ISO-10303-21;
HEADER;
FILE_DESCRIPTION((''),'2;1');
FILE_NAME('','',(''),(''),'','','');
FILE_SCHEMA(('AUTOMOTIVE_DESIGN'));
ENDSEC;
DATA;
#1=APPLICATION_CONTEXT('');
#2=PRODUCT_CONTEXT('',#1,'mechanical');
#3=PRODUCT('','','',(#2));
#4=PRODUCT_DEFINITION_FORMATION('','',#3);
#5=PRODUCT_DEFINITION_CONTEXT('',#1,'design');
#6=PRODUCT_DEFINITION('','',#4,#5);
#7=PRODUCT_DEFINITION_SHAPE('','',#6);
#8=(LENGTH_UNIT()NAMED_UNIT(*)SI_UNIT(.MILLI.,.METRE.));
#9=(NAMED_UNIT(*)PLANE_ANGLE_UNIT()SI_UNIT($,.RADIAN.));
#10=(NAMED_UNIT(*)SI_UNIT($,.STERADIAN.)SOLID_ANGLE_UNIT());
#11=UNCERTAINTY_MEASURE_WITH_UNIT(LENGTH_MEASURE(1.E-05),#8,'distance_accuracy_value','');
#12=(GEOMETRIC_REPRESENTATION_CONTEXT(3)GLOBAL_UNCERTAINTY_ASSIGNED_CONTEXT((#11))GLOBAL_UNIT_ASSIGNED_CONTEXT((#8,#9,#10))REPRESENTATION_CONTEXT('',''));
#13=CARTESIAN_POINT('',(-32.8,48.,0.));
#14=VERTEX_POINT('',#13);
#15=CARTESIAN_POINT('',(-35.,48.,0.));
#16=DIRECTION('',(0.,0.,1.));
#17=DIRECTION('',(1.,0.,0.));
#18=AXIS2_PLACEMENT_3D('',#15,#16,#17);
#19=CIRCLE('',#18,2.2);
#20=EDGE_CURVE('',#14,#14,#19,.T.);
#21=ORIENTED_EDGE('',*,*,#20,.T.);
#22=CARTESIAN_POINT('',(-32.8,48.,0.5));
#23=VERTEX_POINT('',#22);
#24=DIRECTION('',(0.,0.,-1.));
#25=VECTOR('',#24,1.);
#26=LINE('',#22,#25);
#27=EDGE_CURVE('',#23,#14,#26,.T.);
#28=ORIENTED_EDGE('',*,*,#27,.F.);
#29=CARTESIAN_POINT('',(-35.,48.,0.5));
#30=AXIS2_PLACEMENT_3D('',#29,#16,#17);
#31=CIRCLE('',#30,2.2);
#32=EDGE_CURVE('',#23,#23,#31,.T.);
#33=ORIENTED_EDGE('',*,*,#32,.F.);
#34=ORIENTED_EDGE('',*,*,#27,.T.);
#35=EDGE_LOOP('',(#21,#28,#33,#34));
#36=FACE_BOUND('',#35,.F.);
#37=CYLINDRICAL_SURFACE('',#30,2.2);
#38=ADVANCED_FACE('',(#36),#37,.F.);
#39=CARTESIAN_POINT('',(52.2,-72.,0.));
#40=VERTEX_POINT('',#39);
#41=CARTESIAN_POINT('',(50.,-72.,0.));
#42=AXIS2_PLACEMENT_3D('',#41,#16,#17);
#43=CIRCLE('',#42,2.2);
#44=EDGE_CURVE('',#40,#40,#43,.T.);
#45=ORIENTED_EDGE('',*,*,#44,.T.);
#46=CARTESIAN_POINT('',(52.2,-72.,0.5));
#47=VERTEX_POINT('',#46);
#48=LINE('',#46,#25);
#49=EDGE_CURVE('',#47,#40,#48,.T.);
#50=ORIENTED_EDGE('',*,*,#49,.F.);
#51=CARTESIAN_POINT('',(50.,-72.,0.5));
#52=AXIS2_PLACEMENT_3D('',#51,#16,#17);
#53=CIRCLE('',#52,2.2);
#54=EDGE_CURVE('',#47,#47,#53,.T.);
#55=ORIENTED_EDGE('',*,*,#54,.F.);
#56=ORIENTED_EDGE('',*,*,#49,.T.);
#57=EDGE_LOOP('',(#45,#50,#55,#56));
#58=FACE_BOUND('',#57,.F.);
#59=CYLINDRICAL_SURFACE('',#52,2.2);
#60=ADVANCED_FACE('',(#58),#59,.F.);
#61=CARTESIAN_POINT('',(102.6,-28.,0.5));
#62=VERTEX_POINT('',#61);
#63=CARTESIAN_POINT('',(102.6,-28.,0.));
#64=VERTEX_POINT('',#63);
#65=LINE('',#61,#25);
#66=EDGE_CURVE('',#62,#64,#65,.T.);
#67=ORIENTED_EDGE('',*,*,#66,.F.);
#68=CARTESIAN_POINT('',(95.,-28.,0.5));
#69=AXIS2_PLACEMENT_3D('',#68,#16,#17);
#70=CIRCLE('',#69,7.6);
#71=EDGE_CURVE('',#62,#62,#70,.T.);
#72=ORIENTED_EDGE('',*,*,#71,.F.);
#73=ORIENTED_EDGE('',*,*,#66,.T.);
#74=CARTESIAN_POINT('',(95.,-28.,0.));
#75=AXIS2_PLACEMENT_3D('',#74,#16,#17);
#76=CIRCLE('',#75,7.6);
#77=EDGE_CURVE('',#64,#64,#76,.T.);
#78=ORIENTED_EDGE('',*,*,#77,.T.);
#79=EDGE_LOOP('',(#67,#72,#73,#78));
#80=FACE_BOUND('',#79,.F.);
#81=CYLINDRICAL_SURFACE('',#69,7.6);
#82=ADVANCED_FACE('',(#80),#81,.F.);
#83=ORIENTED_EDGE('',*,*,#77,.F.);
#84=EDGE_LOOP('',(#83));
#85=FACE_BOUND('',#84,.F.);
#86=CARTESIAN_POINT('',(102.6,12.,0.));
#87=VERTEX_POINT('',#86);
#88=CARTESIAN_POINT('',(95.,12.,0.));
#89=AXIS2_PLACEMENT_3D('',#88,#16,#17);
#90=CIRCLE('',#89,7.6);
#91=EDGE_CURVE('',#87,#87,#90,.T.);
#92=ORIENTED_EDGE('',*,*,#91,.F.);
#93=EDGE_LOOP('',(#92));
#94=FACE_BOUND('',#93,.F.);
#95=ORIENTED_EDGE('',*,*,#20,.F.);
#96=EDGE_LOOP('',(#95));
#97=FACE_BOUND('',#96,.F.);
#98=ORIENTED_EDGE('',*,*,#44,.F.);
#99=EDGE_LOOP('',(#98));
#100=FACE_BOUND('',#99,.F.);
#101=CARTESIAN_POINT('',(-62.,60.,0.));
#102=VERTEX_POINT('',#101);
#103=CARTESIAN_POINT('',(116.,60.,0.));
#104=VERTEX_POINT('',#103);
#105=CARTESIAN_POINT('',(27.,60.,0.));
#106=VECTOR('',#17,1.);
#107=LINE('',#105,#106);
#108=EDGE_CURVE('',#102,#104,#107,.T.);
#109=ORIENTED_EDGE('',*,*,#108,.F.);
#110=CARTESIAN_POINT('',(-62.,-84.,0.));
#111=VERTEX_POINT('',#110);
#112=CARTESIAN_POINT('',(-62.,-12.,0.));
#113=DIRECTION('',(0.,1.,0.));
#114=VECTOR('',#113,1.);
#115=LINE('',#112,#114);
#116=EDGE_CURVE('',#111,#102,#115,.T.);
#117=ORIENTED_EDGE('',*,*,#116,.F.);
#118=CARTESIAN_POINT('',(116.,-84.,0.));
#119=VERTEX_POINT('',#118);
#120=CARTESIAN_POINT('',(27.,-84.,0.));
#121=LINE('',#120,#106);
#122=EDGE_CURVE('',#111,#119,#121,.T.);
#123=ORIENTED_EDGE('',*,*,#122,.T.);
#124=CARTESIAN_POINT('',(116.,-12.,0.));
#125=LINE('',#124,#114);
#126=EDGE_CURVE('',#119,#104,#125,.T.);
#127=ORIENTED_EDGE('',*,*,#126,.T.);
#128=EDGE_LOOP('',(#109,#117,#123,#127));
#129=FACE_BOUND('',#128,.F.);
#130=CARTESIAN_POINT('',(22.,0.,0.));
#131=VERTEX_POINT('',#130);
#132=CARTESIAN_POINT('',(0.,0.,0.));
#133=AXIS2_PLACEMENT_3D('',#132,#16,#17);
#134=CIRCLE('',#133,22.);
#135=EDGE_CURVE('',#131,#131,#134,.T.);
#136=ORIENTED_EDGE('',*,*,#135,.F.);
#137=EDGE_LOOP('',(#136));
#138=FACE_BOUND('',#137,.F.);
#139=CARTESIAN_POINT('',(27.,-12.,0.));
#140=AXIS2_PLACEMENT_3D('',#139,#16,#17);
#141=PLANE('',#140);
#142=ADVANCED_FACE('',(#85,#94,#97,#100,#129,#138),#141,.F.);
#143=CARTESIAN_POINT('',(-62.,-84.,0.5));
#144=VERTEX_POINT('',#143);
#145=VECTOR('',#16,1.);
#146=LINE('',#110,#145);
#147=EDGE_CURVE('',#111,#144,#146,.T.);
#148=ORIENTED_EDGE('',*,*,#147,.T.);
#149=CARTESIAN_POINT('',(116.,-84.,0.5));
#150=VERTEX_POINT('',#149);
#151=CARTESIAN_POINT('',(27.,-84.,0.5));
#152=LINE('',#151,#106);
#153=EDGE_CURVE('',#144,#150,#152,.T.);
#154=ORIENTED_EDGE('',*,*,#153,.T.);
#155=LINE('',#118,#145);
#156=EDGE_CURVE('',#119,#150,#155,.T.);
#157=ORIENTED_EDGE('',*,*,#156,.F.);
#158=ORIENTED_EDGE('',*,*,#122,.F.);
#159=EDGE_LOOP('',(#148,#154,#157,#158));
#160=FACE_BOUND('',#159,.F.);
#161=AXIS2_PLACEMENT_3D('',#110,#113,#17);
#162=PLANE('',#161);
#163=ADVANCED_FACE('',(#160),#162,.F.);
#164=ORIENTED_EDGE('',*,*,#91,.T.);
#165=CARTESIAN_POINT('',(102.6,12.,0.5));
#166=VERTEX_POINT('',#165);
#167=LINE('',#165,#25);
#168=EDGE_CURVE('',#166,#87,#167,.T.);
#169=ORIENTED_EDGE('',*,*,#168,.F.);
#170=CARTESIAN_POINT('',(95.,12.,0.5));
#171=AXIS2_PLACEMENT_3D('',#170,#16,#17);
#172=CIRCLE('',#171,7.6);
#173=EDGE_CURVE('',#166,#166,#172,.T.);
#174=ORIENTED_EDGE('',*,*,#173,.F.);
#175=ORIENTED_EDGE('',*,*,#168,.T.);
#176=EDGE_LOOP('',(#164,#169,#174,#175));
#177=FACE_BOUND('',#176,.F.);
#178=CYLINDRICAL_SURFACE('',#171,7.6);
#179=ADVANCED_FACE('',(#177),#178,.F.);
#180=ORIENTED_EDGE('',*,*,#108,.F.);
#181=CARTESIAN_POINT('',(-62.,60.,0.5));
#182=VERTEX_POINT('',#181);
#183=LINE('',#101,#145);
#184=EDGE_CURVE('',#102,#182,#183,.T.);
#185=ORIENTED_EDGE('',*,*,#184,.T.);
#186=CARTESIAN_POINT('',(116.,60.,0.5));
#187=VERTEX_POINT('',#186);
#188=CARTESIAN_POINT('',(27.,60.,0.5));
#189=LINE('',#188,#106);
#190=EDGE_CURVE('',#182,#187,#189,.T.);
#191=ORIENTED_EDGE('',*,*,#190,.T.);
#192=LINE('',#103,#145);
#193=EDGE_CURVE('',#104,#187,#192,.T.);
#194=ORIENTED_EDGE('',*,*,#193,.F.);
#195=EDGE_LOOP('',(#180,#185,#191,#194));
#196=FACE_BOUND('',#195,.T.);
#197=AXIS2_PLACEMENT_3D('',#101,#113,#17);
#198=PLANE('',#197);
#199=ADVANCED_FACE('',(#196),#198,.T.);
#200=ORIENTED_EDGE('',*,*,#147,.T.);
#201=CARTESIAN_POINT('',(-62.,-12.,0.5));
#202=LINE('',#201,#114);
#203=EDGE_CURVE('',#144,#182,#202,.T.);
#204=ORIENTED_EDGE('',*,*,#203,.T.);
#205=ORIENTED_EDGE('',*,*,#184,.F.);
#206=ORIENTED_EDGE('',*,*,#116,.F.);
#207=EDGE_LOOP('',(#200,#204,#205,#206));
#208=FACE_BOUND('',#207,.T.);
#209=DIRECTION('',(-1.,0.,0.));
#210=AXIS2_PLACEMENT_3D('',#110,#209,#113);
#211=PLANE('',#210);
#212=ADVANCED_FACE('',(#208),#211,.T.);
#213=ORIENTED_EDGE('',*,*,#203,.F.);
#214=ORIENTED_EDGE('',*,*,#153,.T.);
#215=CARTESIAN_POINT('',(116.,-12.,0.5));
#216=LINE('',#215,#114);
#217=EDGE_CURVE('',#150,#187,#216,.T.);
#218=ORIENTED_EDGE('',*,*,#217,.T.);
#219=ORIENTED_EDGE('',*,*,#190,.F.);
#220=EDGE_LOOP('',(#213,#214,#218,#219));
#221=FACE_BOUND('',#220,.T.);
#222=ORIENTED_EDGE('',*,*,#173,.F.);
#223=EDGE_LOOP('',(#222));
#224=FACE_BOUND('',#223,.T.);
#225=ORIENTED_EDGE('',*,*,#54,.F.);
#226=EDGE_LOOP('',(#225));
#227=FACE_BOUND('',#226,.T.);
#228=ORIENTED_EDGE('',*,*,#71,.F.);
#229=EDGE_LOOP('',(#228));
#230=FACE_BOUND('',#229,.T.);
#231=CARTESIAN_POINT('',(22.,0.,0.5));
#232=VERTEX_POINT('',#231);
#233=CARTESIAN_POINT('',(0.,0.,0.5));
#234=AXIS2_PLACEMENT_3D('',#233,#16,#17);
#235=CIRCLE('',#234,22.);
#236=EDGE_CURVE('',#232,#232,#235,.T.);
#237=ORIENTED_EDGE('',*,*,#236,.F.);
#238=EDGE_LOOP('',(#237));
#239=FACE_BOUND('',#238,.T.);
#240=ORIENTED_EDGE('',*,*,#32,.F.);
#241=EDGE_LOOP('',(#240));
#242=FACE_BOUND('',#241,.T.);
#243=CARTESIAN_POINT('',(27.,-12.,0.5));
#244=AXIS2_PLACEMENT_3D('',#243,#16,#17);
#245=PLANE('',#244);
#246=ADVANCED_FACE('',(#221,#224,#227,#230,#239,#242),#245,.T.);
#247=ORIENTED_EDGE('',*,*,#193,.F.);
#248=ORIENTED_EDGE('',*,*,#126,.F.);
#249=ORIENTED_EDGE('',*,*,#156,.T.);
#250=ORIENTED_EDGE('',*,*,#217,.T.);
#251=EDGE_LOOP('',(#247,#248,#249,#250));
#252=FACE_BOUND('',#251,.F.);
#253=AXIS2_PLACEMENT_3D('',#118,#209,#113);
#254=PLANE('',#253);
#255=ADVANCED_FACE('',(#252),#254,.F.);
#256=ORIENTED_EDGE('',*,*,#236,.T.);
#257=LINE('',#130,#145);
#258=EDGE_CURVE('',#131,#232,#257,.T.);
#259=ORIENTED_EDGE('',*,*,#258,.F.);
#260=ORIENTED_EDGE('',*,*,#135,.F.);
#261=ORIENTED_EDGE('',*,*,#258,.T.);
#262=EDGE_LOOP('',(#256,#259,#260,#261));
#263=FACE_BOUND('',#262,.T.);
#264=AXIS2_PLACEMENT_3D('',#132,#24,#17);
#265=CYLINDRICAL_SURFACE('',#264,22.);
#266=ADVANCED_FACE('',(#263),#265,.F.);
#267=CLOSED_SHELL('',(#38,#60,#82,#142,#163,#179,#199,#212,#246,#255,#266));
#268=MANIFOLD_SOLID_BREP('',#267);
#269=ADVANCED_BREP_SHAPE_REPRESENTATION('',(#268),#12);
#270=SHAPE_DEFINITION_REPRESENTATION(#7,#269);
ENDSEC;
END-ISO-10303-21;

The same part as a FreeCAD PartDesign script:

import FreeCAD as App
import Part
import Sketcher
from FreeCAD import Vector

doc = App.newDocument("Part")
params = doc.addObject("Spreadsheet::Sheet", "Params")
for row, (alias, value) in enumerate([
    ("sketch1_diameter", "44 mm"),
    ("sketch1_width", "178 mm"),
    ("sketch1_height", "144 mm"),
    ("pad1_length", "0.5 mm"),
    ("sketch2_diameter", "4.4 mm"),
    ("sketch3_diameter", "15.2 mm"),
], start=1):
    params.set(f"A{row}", alias)
    params.set(f"B{row}", "=" + value)
    params.setAlias(f"B{row}", alias)

body = doc.addObject("PartDesign::Body", "Body")

# Sketch on XY plane
sketch1 = body.newObject("Sketcher::SketchObject", "Sketch")
sketch1.AttachmentSupport = (doc.getObject("XY_Plane"), [""])
sketch1.MapMode = "FlatFace"
sketch1.addGeometry(Part.LineSegment(Vector(-62, 60, 0), Vector(-62, -84, 0)), False)
sketch1.addGeometry(Part.LineSegment(Vector(-62, -84, 0), Vector(116, -84, 0)), False)
sketch1.addGeometry(Part.LineSegment(Vector(116, -84, 0), Vector(116, 60, 0)), False)
sketch1.addGeometry(Part.LineSegment(Vector(116, 60, 0), Vector(-62, 60, 0)), False)
sketch1.addGeometry(Part.Circle(Vector(0, 0, 0), Vector(0, 0, 1), 22), False)
sketch1.addConstraint(Sketcher.Constraint("Coincident", 0, 2, 1, 1))
sketch1.addConstraint(Sketcher.Constraint("Coincident", 1, 2, 2, 1))
sketch1.addConstraint(Sketcher.Constraint("Coincident", 2, 2, 3, 1))
sketch1.addConstraint(Sketcher.Constraint("Coincident", 3, 2, 0, 1))
sketch1.addConstraint(Sketcher.Constraint("Vertical", 0))
sketch1.addConstraint(Sketcher.Constraint("Horizontal", 1))
sketch1.addConstraint(Sketcher.Constraint("Vertical", 2))
sketch1.addConstraint(Sketcher.Constraint("Horizontal", 3))
sketch1.addConstraint(Sketcher.Constraint("Coincident", 4, 3, -1, 1))
sketch1.addConstraint(Sketcher.Constraint("Diameter", 4, 44.0))
sketch1.addConstraint(Sketcher.Constraint("DistanceX", 1, 1, 1, 2, 178.0))
sketch1.addConstraint(Sketcher.Constraint("DistanceY", 0, 2, 0, 1, 144.0))
sketch1.addConstraint(Sketcher.Constraint("DistanceX", 0, 2, -1, 1, 62.0))
sketch1.addConstraint(Sketcher.Constraint("DistanceY", 0, 2, -1, 1, 84.0))
sketch1.setExpression("Constraints[9]", "Params.sketch1_diameter")
sketch1.setExpression("Constraints[10]", "Params.sketch1_width")
sketch1.setExpression("Constraints[11]", "Params.sketch1_height")
pad1 = body.newObject("PartDesign::Pad", "Pad")
pad1.Profile = sketch1
pad1.setExpression("Length", "Params.pad1_length")

# Sketch on XY plane
sketch2 = body.newObject("Sketcher::SketchObject", "Sketch001")
sketch2.AttachmentSupport = (doc.getObject("XY_Plane"), [""])
sketch2.MapMode = "FlatFace"
sketch2.AttachmentOffset = App.Placement(Vector(0, 0, 0.5), App.Rotation())
sketch2.addGeometry(Part.Circle(Vector(-35, 48, 0), Vector(0, 0, 1), 2.2), False)
sketch2.addGeometry(Part.Circle(Vector(50, -72, 0), Vector(0, 0, 1), 2.2), False)
sketch2.addConstraint(Sketcher.Constraint("Equal", 0, 1))
sketch2.addConstraint(Sketcher.Constraint("Diameter", 0, 4.4))
sketch2.addConstraint(Sketcher.Constraint("DistanceX", 0, 3, -1, 1, 35.0))
sketch2.addConstraint(Sketcher.Constraint("DistanceY", -1, 1, 0, 3, 48.0))
sketch2.addConstraint(Sketcher.Constraint("DistanceX", -1, 1, 1, 3, 50.0))
sketch2.addConstraint(Sketcher.Constraint("DistanceY", 1, 3, -1, 1, 72.0))
sketch2.setExpression("Constraints[1]", "Params.sketch2_diameter")
pocket1 = body.newObject("PartDesign::Pocket", "Pocket")
pocket1.Profile = sketch2
pocket1.Type = "ThroughAll"

# Sketch on XY plane
sketch3 = body.newObject("Sketcher::SketchObject", "Sketch002")
sketch3.AttachmentSupport = (doc.getObject("XY_Plane"), [""])
sketch3.MapMode = "FlatFace"
sketch3.AttachmentOffset = App.Placement(Vector(0, 0, 0.5), App.Rotation())
sketch3.addGeometry(Part.Circle(Vector(95, 12, 0), Vector(0, 0, 1), 7.6), False)
sketch3.addGeometry(Part.Circle(Vector(95, -28, 0), Vector(0, 0, 1), 7.6), False)
sketch3.addConstraint(Sketcher.Constraint("Equal", 0, 1))
sketch3.addConstraint(Sketcher.Constraint("Vertical", 0, 3, 1, 3))
sketch3.addConstraint(Sketcher.Constraint("Diameter", 0, 15.2))
sketch3.addConstraint(Sketcher.Constraint("DistanceX", -1, 1, 0, 3, 95.0))
sketch3.addConstraint(Sketcher.Constraint("DistanceY", -1, 1, 0, 3, 12.0))
sketch3.addConstraint(Sketcher.Constraint("DistanceY", 1, 3, -1, 1, 28.0))
sketch3.setExpression("Constraints[2]", "Params.sketch3_diameter")
pocket2 = body.newObject("PartDesign::Pocket", "Pocket001")
pocket2.Profile = sketch3
pocket2.Type = "ThroughAll"

doc.recompute()
